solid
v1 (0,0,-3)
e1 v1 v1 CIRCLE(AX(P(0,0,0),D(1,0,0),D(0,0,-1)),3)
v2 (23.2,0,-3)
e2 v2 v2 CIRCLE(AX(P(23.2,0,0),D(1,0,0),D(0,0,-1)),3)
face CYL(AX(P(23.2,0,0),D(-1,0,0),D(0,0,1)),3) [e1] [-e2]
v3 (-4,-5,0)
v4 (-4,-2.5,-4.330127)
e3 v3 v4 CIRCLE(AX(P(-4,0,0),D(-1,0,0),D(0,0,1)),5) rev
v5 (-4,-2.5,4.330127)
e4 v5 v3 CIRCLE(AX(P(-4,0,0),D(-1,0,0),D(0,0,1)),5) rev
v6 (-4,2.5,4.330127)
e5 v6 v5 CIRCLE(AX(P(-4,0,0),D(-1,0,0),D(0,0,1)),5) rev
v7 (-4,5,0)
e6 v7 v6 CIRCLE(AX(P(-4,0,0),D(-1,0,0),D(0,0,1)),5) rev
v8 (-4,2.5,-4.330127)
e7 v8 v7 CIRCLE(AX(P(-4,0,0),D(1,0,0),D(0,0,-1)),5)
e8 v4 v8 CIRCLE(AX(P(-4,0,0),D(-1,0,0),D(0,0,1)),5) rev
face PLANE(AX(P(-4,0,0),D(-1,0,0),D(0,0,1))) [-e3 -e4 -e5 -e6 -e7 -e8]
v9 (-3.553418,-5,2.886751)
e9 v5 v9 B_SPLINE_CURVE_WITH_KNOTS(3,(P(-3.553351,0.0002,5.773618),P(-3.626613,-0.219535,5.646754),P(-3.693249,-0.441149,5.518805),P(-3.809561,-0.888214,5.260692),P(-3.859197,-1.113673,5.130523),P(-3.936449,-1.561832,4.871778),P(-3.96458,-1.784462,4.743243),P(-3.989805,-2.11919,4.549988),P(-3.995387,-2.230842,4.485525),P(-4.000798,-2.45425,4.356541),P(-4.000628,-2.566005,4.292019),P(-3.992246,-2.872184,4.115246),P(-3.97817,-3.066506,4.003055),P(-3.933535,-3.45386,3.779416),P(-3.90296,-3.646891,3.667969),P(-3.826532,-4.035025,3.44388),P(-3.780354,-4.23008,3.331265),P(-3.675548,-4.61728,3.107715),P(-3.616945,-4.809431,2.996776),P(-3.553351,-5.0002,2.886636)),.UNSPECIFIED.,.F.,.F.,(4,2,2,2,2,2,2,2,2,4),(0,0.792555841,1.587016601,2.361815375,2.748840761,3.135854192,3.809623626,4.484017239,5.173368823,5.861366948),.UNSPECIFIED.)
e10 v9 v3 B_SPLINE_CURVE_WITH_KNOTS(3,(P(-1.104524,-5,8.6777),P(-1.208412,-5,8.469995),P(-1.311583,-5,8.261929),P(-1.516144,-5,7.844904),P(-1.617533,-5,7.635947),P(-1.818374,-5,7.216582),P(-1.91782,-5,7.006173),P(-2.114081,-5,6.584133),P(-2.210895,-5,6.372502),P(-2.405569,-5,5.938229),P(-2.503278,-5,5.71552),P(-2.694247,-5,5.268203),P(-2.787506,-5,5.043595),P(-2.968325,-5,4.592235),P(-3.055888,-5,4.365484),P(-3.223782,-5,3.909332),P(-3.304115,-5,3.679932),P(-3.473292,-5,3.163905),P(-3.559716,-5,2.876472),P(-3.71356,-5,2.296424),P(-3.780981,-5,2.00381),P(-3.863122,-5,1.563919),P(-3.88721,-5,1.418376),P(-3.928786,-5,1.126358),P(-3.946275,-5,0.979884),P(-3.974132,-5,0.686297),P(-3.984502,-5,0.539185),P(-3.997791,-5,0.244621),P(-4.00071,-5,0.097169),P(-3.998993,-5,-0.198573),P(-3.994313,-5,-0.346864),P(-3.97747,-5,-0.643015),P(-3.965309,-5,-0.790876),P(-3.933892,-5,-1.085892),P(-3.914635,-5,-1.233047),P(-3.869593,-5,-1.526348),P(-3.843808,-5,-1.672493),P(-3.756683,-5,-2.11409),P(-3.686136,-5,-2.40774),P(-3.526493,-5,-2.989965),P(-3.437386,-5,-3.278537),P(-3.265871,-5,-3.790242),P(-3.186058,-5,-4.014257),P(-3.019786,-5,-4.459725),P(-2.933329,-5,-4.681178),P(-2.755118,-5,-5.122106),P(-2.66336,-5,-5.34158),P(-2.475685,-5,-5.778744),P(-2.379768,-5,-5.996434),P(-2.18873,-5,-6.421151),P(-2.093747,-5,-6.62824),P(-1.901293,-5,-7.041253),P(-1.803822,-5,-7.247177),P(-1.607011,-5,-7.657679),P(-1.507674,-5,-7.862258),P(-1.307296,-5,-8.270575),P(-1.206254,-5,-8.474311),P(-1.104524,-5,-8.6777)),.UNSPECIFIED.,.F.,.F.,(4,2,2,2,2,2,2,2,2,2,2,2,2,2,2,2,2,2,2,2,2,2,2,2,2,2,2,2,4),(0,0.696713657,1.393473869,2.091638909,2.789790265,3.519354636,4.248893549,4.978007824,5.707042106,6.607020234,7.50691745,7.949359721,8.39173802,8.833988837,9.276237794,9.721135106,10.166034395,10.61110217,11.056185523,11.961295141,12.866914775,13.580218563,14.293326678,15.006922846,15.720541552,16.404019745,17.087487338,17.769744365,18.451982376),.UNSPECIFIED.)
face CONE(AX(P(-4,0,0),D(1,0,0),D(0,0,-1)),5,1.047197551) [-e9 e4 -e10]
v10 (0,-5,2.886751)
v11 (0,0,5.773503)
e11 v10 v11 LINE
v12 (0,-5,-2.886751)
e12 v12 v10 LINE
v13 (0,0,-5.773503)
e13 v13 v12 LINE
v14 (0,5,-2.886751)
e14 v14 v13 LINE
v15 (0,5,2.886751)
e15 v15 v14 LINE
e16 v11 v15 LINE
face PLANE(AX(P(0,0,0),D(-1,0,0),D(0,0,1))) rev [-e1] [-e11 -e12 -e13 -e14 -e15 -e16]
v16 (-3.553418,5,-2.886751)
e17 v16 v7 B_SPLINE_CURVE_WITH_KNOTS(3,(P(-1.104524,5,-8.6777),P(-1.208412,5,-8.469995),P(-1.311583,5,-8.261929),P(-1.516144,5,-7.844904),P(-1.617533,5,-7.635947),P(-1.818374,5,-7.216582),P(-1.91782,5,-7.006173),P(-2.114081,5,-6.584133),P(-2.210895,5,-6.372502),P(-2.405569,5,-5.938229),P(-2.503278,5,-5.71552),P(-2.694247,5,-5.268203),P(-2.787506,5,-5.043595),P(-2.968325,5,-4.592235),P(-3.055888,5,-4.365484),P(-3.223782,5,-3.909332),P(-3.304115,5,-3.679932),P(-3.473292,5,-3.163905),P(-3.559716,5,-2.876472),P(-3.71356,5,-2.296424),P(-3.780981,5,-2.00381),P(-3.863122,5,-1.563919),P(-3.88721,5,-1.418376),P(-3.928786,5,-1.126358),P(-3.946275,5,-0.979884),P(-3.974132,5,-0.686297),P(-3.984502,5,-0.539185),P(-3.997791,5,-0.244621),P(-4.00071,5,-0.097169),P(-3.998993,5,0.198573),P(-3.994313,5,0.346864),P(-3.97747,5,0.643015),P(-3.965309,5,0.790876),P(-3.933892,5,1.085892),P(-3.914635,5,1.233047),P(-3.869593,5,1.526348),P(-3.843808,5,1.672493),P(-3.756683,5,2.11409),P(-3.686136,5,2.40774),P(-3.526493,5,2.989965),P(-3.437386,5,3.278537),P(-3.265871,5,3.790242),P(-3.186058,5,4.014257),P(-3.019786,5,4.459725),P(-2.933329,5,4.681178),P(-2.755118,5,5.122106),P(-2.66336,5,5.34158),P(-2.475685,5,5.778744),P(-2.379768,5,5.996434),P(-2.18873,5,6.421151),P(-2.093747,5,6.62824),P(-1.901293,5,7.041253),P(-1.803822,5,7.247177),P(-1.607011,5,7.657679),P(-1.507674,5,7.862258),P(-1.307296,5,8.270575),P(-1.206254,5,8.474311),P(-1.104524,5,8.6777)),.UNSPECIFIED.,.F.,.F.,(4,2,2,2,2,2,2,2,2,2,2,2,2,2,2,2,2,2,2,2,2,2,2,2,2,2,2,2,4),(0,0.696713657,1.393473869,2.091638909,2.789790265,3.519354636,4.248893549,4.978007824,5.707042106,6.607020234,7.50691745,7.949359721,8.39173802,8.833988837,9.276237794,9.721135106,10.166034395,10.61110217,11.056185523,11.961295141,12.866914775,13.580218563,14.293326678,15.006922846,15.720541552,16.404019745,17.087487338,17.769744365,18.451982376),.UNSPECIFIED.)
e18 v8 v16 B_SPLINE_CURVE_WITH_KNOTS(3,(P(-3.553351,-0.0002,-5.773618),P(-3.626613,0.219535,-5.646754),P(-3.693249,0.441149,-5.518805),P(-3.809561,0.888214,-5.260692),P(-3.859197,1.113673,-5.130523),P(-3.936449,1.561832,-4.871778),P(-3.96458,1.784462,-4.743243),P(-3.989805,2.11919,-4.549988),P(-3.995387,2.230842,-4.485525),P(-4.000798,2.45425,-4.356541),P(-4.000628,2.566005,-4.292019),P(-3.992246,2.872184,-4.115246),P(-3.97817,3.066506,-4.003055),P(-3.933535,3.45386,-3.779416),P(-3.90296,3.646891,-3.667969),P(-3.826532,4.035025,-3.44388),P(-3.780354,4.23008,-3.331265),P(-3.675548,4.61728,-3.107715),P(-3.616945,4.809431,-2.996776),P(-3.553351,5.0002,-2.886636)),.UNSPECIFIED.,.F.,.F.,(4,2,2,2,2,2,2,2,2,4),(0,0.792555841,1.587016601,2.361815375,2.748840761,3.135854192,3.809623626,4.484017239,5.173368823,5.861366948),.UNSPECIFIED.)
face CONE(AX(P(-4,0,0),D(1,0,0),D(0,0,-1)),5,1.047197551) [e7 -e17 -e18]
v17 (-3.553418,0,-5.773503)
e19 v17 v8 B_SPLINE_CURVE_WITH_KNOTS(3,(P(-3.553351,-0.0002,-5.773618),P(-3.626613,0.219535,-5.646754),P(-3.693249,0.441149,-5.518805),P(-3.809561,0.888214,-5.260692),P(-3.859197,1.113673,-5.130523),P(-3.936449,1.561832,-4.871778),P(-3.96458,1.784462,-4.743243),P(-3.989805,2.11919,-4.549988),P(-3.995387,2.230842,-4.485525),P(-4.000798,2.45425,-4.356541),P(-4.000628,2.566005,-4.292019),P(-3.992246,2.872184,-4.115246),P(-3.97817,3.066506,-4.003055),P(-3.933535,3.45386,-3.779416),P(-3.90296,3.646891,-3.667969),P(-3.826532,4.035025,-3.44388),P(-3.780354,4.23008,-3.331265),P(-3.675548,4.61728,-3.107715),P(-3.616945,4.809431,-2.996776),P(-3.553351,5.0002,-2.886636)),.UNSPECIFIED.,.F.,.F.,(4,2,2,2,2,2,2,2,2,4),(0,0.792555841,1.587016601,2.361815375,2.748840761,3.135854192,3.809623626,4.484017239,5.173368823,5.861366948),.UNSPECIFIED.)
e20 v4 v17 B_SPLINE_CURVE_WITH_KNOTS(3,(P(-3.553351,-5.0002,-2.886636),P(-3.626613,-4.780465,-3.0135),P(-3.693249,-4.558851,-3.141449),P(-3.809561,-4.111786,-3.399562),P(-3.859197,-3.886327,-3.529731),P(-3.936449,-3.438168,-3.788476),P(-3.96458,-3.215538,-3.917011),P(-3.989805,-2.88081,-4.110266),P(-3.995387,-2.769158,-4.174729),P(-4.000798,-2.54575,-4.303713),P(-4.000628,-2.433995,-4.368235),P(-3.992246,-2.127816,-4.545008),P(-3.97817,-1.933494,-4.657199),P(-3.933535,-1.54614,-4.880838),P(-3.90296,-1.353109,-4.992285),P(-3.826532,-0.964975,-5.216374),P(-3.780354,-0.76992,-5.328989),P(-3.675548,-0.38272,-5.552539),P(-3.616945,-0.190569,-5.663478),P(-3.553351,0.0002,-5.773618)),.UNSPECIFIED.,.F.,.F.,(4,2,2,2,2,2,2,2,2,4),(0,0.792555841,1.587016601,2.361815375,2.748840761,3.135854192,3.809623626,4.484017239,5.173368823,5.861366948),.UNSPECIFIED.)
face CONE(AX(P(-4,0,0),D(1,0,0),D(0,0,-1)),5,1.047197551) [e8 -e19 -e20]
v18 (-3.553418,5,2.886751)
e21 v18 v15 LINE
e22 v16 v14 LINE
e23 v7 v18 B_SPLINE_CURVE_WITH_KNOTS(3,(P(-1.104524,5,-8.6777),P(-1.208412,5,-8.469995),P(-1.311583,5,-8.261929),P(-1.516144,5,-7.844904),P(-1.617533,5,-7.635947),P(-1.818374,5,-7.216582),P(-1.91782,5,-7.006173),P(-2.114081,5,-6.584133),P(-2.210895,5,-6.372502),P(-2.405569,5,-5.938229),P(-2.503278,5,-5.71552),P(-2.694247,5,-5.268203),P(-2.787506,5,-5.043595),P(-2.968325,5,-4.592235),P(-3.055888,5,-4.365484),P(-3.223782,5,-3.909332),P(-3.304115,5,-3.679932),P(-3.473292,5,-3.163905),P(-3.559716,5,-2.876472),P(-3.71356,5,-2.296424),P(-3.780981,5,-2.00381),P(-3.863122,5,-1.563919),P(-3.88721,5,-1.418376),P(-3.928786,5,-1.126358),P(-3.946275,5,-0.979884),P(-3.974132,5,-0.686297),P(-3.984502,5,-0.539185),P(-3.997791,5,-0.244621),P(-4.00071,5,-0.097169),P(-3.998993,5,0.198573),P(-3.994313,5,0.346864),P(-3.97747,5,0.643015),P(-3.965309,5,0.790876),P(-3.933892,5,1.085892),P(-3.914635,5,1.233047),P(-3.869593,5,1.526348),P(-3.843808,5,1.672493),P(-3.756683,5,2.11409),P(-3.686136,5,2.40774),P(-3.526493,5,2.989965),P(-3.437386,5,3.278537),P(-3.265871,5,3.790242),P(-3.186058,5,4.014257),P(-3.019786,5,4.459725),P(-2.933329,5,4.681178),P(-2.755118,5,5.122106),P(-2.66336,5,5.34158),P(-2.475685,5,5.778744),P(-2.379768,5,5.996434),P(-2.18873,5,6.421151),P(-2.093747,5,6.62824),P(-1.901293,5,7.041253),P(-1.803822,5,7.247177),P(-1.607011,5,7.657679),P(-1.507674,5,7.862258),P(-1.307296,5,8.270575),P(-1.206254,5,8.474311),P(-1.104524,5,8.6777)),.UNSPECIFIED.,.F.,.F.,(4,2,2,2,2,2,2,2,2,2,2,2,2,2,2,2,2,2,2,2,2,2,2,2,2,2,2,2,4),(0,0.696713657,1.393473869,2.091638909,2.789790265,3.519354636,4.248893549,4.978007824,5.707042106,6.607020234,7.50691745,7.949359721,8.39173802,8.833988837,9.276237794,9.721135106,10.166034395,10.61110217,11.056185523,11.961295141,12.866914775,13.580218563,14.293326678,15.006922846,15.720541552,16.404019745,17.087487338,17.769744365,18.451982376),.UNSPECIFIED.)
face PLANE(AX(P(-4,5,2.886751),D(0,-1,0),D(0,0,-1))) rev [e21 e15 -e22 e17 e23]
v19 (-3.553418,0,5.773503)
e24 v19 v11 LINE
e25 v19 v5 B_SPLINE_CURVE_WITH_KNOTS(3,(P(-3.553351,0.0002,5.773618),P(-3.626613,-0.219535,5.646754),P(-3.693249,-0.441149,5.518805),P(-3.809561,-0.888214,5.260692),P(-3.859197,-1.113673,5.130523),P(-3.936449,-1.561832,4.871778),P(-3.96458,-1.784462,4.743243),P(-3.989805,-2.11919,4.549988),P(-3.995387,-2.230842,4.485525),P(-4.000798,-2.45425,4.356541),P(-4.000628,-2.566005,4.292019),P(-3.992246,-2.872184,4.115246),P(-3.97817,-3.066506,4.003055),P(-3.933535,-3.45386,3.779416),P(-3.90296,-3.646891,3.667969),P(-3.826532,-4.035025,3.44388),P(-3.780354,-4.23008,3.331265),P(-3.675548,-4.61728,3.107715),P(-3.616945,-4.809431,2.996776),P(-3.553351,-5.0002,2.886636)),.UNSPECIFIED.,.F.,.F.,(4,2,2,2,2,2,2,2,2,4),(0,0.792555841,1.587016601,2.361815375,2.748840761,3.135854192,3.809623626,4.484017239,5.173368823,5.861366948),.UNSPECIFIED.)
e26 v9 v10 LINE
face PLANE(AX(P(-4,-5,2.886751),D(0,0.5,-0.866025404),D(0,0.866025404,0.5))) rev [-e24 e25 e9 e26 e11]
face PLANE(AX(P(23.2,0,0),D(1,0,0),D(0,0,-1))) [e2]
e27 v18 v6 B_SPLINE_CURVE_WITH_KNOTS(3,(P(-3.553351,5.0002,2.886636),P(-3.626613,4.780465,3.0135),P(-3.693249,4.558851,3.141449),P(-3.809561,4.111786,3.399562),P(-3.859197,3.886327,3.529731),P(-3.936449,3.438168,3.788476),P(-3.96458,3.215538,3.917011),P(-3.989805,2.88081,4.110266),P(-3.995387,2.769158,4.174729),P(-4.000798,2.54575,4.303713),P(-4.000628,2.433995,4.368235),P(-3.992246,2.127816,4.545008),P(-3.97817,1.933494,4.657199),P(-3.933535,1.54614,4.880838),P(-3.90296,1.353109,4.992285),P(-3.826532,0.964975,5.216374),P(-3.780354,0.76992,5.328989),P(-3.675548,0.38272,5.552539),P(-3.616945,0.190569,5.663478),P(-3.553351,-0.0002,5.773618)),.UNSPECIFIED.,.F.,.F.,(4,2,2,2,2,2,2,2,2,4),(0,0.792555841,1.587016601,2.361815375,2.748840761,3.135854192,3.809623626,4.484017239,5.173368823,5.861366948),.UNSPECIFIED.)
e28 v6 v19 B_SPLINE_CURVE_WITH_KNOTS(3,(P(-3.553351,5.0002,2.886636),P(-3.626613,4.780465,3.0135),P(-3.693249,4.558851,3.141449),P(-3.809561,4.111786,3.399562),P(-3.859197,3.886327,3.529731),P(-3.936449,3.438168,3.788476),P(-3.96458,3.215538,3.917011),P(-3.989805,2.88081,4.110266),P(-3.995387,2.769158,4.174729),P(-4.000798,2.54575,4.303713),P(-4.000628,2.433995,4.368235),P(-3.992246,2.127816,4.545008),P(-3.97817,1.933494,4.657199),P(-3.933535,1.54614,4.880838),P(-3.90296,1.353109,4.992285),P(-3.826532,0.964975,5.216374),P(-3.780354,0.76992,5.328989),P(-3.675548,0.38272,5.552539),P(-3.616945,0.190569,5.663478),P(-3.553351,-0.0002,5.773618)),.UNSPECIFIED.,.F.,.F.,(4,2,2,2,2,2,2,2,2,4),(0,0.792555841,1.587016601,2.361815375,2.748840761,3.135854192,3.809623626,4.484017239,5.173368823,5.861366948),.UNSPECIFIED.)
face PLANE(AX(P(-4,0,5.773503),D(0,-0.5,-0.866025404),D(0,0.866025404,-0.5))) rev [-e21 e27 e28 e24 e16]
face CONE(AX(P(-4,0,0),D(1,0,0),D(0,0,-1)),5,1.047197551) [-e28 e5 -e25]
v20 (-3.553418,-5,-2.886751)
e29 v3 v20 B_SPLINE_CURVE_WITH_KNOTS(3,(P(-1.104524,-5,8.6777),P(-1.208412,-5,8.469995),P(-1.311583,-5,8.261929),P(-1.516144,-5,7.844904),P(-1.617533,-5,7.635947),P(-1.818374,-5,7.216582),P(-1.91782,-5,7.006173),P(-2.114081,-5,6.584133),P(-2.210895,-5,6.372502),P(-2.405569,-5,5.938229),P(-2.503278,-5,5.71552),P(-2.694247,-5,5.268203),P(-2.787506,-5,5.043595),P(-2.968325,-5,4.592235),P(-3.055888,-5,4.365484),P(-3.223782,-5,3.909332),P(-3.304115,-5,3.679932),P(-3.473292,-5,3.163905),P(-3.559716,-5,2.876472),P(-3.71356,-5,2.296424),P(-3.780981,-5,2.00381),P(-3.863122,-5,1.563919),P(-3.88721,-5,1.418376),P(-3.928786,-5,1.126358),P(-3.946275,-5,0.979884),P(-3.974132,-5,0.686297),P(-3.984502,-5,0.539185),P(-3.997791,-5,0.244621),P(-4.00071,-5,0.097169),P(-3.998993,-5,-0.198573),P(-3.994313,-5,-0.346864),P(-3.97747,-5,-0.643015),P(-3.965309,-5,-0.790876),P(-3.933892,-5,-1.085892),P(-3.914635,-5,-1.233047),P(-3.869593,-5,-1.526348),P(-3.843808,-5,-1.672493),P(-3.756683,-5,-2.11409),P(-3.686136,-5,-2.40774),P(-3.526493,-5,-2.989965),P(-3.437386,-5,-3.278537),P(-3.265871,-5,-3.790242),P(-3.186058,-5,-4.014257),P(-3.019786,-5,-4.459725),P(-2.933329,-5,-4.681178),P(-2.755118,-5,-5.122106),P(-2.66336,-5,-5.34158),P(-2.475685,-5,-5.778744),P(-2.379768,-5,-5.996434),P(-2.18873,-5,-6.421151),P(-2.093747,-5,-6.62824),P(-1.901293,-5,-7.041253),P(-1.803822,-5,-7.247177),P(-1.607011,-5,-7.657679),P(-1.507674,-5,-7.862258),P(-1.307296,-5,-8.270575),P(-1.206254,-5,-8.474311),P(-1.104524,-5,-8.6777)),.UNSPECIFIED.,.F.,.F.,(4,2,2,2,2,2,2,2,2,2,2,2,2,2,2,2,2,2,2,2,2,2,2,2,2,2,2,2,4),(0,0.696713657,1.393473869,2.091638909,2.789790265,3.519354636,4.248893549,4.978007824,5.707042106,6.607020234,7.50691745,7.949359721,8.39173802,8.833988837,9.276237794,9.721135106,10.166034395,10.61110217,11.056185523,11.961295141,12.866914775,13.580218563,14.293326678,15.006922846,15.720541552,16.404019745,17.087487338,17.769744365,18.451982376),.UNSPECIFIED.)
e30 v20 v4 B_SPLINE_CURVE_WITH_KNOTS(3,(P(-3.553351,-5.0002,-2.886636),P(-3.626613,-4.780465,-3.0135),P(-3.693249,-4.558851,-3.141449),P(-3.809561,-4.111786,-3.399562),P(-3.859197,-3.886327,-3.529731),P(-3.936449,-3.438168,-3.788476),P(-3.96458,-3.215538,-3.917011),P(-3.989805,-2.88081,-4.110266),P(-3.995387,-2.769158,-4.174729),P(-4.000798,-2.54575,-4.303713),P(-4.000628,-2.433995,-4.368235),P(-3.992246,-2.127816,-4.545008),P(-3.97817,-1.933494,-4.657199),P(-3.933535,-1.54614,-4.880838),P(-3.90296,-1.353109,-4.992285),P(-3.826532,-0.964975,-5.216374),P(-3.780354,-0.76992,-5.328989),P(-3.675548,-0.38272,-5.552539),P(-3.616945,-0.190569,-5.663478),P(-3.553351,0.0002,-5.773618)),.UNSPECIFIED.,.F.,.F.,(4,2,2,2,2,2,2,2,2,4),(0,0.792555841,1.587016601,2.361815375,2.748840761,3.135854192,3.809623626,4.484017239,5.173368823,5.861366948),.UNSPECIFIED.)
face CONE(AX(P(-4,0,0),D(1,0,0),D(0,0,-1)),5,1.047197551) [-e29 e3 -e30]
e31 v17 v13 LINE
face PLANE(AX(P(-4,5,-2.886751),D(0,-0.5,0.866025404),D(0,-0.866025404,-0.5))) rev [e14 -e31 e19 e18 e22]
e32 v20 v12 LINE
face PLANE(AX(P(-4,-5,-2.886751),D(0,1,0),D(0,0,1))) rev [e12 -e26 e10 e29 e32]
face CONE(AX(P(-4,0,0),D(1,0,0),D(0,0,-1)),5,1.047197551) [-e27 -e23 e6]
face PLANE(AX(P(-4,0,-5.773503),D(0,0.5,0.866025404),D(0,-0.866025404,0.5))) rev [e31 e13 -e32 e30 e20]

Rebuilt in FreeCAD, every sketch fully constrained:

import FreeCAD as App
import Part
import Sketcher
from FreeCAD import Vector
Q = App.Units.Quantity


def add_polygon(sketch, points):
    """Adds a closed chain of lines whose ends are joined by coincident constraints."""
    first, n = sketch.GeometryCount, len(points)
    for a, b in zip(points, points[1:] + points[:1]):
        sketch.addGeometry(Part.LineSegment(App.Vector(*a, 0), App.Vector(*b, 0)), False)
    for i in range(n):
        sketch.addConstraint(Sketcher.Constraint("Coincident", first + i, 2, first + (i + 1) % n, 1))

doc = App.newDocument("Part")
body = doc.addObject("PartDesign::Body", "Body")

# Sketch on YZ plane
sketch1 = doc.addObject("Sketcher::SketchObject", "Sketch")
body.addObject(sketch1)
sketch1.AttachmentSupport = (doc.YZ_Plane, [""])
sketch1.MapMode = "FlatFace"
sketch1.addGeometry(Part.Circle(Vector(0, 0, 0), Vector(0, 0, 1), 3), False)
sketch1.addConstraint([
    Sketcher.Constraint("Coincident", 0, 3, -1, 1),
    Sketcher.Constraint("Diameter", 0, 6.0),
])
pad1 = doc.addObject("PartDesign::Pad", "Pad")
body.addObject(pad1)
pad1.Profile = sketch1
pad1.Length = 23.2

# Sketch on YZ plane
sketch2 = doc.addObject("Sketcher::SketchObject", "Sketch001")
body.addObject(sketch2)
sketch2.AttachmentSupport = (doc.YZ_Plane, [""])
sketch2.MapMode = "FlatFace"
add_polygon(sketch2, [(0, 6), (5, 3), (5, -3), (0, -6), (-5, -3), (-5, 3)])  # lines 0-5
sketch2.addConstraint([
    Sketcher.Constraint("Vertical", 1),
    Sketcher.Constraint("Vertical", 4),
    Sketcher.Constraint("Symmetric", 0, 2, 3, 2, -1, 1),
    Sketcher.Constraint("Symmetric", 2, 2, 5, 2, -1, 1),
    Sketcher.Constraint("PointOnObject", 2, 2, -2),
    Sketcher.Constraint("Parallel", 2, 5),
    Sketcher.Constraint("Horizontal", 1, 2, 3, 2),
    Sketcher.Constraint("Angle", 0, Q("-30 deg")),
    Sketcher.Constraint("DistanceX", -1, 1, 0, 2, 5.0),
    Sketcher.Constraint("DistanceY", 1, 2, 1, 1, 5.773503),
])
pad2 = doc.addObject("PartDesign::Pad", "Pad001")
body.addObject(pad2)
pad2.Profile = sketch2
pad2.Length = 4
pad2.Reversed = True

# Sketch on XZ plane
sketch3 = doc.addObject("Sketcher::SketchObject", "Sketch002")
body.addObject(sketch3)
sketch3.AttachmentSupport = (doc.XZ_Plane, [""])
sketch3.MapMode = "FlatFace"
add_polygon(sketch3, [(-4, -5.77), (-4, -5), (-3.55, -5.77)])  # lines 0-2
sketch3.addConstraint([
    Sketcher.Constraint("Vertical", 0),
    Sketcher.Constraint("Horizontal", 2),
    Sketcher.Constraint("Angle", 1, Q("-60 deg")),
    Sketcher.Constraint("DistanceX", 0, 2, -1, 1, 4.0),
    Sketcher.Constraint("DistanceY", 0, 2, -1, 1, 5.0),
    Sketcher.Constraint("DistanceX", 2, 2, 2, 1, 0.446582),
])
groove = doc.addObject("PartDesign::Groove", "Groove")
body.addObject(groove)
groove.Profile = sketch3
groove.ReferenceAxis = (sketch3, ["H_Axis"])
groove.Angle = 360

doc.recompute()
